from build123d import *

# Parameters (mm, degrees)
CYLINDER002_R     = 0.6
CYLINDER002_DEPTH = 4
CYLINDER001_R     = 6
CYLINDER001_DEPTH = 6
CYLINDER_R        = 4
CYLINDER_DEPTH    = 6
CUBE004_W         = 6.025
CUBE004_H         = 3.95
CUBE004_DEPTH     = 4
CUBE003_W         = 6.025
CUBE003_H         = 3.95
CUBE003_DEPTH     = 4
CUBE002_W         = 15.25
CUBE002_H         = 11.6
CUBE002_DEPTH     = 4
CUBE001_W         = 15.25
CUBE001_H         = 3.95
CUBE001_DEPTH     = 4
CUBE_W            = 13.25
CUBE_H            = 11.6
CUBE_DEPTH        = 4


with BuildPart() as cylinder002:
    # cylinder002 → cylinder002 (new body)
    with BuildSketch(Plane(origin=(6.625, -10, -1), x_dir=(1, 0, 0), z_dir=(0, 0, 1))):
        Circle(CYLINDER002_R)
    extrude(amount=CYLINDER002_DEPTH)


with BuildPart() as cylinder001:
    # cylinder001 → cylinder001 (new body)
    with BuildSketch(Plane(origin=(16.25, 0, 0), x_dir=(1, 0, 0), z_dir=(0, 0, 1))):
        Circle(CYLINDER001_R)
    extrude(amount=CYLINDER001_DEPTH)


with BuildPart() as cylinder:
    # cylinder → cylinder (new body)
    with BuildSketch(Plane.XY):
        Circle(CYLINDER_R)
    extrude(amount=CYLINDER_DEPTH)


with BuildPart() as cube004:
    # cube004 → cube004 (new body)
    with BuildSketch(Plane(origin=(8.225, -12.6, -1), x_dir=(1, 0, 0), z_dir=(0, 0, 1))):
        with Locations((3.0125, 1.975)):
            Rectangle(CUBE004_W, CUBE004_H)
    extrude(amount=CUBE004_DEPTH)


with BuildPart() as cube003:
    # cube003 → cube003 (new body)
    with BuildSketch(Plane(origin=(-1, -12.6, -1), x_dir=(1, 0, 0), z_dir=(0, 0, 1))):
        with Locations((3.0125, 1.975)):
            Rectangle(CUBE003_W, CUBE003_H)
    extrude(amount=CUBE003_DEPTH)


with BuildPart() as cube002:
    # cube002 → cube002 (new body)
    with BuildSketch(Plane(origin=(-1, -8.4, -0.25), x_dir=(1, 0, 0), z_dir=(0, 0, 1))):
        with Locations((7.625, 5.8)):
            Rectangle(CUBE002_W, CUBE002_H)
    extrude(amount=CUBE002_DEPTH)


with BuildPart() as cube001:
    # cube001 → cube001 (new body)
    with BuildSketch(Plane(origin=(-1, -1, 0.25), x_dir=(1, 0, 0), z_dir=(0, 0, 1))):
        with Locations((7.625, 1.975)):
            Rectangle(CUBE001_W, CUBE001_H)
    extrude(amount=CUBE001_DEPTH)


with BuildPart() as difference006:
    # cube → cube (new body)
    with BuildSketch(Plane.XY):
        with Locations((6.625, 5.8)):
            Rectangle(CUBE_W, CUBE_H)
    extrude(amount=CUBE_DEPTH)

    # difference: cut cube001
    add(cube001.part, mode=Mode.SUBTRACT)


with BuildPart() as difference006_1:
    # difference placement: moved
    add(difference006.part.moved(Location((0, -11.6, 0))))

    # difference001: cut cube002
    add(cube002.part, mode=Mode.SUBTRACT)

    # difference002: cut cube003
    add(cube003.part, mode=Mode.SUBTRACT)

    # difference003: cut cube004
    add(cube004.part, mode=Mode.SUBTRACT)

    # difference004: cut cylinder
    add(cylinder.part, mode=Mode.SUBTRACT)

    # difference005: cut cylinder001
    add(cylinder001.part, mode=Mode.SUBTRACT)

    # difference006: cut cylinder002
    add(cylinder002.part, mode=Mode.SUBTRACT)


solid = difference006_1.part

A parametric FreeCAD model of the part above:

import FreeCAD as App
import Part
import Sketcher

V = App.Vector


def add_polygon(sketch, points):
    """Adds a closed chain of lines whose ends are joined by coincident constraints."""
    first, n = sketch.GeometryCount, len(points)
    for a, b in zip(points, points[1:] + points[:1]):
        sketch.addGeometry(Part.LineSegment(App.Vector(*a, 0), App.Vector(*b, 0)), False)
    for i in range(n):
        sketch.addConstraint(Sketcher.Constraint("Coincident", first + i, 2, first + (i + 1) % n, 1))

doc = App.newDocument("Part")
body = doc.addObject("PartDesign::Body", "Body")

sketch1 = body.newObject("Sketcher::SketchObject", "Sketch")
sketch1.AttachmentSupport = (doc.getObject("XY_Plane"), [""])
sketch1.MapMode = "FlatFace"
sketch1.AttachmentOffset = App.Placement(V(0, 0, -1), App.Rotation())
sketch1.addGeometry(Part.Circle(V(6.625, -10, 0), V(0, 0, 1), 0.6), False)
sketch1.addConstraint([
    Sketcher.Constraint("Diameter", 0, 1.2),
    Sketcher.Constraint("DistanceY", 0, 3, -1, 1, 10.0),
    Sketcher.Constraint("DistanceX", -1, 1, 0, 3, 6.625),
])
pad1 = body.newObject("PartDesign::Pad", "Pad")
pad1.Profile = sketch1
pad1.Length = 4
body2 = doc.addObject("PartDesign::Body", "Body001")

sketch2 = body2.newObject("Sketcher::SketchObject", "Sketch001")
sketch2.AttachmentSupport = (doc.getObject("XY_Plane001"), [""])
sketch2.MapMode = "FlatFace"
sketch2.addGeometry(Part.Circle(V(16.25, 0, 0), V(0, 0, 1), 6), False)
sketch2.addConstraint([
    Sketcher.Constraint("PointOnObject", 0, 3, -1),
    Sketcher.Constraint("Diameter", 0, 12.0),
    Sketcher.Constraint("DistanceX", -1, 1, 0, 3, 16.25),
])
pad2 = body2.newObject("PartDesign::Pad", "Pad001")
pad2.Profile = sketch2
pad2.Length = 6
body3 = doc.addObject("PartDesign::Body", "Body002")

sketch3 = body3.newObject("Sketcher::SketchObject", "Sketch002")
sketch3.AttachmentSupport = (doc.getObject("XY_Plane002"), [""])
sketch3.MapMode = "FlatFace"
sketch3.addGeometry(Part.Circle(V(0, 0, 0), V(0, 0, 1), 4), False)
sketch3.addConstraint([
    Sketcher.Constraint("Coincident", 0, 3, -1, 1),
    Sketcher.Constraint("Diameter", 0, 8.0),
])
pad3 = body3.newObject("PartDesign::Pad", "Pad002")
pad3.Profile = sketch3
pad3.Length = 6
body4 = doc.addObject("PartDesign::Body", "Body003")

sketch4 = body4.newObject("Sketcher::SketchObject", "Sketch003")
sketch4.AttachmentSupport = (doc.getObject("XY_Plane003"), [""])
sketch4.MapMode = "FlatFace"
sketch4.AttachmentOffset = App.Placement(V(0, 0, -1), App.Rotation())
add_polygon(sketch4, [(8.225, -8.65), (8.225, -12.6), (14.25, -12.6), (14.25, -8.65)])
sketch4.addConstraint([
    Sketcher.Constraint("Vertical", 0),
    Sketcher.Constraint("Horizontal", 1),
    Sketcher.Constraint("Vertical", 2),
    Sketcher.Constraint("Horizontal", 3),
    Sketcher.Constraint("DistanceY", 0, 2, 0, 1, 3.95),
    Sketcher.Constraint("DistanceY", 0, 2, -1, 1, 12.6),
    Sketcher.Constraint("DistanceX", 1, 1, 1, 2, 6.025),
    Sketcher.Constraint("DistanceX", -1, 1, 1, 2, 14.25),
])
pad4 = body4.newObject("PartDesign::Pad", "Pad003")
pad4.Profile = sketch4
pad4.Length = 4
body5 = doc.addObject("PartDesign::Body", "Body004")

sketch5 = body5.newObject("Sketcher::SketchObject", "Sketch004")
sketch5.AttachmentSupport = (doc.getObject("XY_Plane004"), [""])
sketch5.MapMode = "FlatFace"
sketch5.AttachmentOffset = App.Placement(V(0, 0, -1), App.Rotation())
add_polygon(sketch5, [(-1, -8.65), (-1, -12.6), (5.025, -12.6), (5.025, -8.65)])
sketch5.addConstraint([
    Sketcher.Constraint("Vertical", 0),
    Sketcher.Constraint("Horizontal", 1),
    Sketcher.Constraint("Vertical", 2),
    Sketcher.Constraint("Horizontal", 3),
    Sketcher.Constraint("DistanceX", 0, 2, -1, 1, 1.0),
    Sketcher.Constraint("DistanceY", 0, 2, 0, 1, 3.95),
    Sketcher.Constraint("DistanceY", 0, 2, -1, 1, 12.6),
    Sketcher.Constraint("DistanceX", 1, 1, 1, 2, 6.025),
])
pad5 = body5.newObject("PartDesign::Pad", "Pad004")
pad5.Profile = sketch5
pad5.Length = 4
body6 = doc.addObject("PartDesign::Body", "Body005")

sketch6 = body6.newObject("Sketcher::SketchObject", "Sketch005")
sketch6.AttachmentSupport = (doc.getObject("XY_Plane005"), [""])
sketch6.MapMode = "FlatFace"
sketch6.AttachmentOffset = App.Placement(V(0, 0, -0.25), App.Rotation())
add_polygon(sketch6, [(-1, 3.2), (-1, -8.4), (14.25, -8.4), (14.25, 3.2)])
sketch6.addConstraint([
    Sketcher.Constraint("Vertical", 0),
    Sketcher.Constraint("Horizontal", 1),
    Sketcher.Constraint("Vertical", 2),
    Sketcher.Constraint("Horizontal", 3),
    Sketcher.Constraint("DistanceY", 0, 2, 0, 1, 11.6),
    Sketcher.Constraint("DistanceX", 0, 2, -1, 1, 1.0),
    Sketcher.Constraint("DistanceX", 1, 1, 1, 2, 15.25),
    Sketcher.Constraint("DistanceY", 0, 2, -1, 1, 8.4),
])
pad6 = body6.newObject("PartDesign::Pad", "Pad005")
pad6.Profile = sketch6
pad6.Length = 4
body7 = doc.addObject("PartDesign::Body", "Body006")

sketch7 = body7.newObject("Sketcher::SketchObject", "Sketch006")
sketch7.AttachmentSupport = (doc.getObject("XY_Plane006"), [""])
sketch7.MapMode = "FlatFace"
sketch7.AttachmentOffset = App.Placement(V(0, 0, 0.25), App.Rotation())
add_polygon(sketch7, [(-1, 2.95), (-1, -1), (14.25, -1), (14.25, 2.95)])
sketch7.addConstraint([
    Sketcher.Constraint("Vertical", 0),
    Sketcher.Constraint("Horizontal", 1),
    Sketcher.Constraint("Vertical", 2),
    Sketcher.Constraint("Horizontal", 3),
    Sketcher.Constraint("DistanceX", 0, 2, -1, 1, 1.0),
    Sketcher.Constraint("DistanceY", 0, 2, -1, 1, 1.0),
    Sketcher.Constraint("DistanceX", 1, 1, 1, 2, 15.25),
    Sketcher.Constraint("DistanceY", 0, 2, 0, 1, 3.95),
])
pad7 = body7.newObject("PartDesign::Pad", "Pad006")
pad7.Profile = sketch7
pad7.Length = 4
body8 = doc.addObject("PartDesign::Body", "Body007")

sketch8 = body8.newObject("Sketcher::SketchObject", "Sketch007")
sketch8.AttachmentSupport = (doc.getObject("XY_Plane007"), [""])
sketch8.MapMode = "FlatFace"
add_polygon(sketch8, [(0, 11.6), (0, 0), (13.25, 0), (13.25, 11.6)])
sketch8.addConstraint([
    Sketcher.Constraint("Vertical", 0),
    Sketcher.Constraint("Horizontal", 1),
    Sketcher.Constraint("Vertical", 2),
    Sketcher.Constraint("Horizontal", 3),
    Sketcher.Constraint("Coincident", 0, 2, -1, 1),
    Sketcher.Constraint("DistanceY", 0, 2, 0, 1, 11.6),
    Sketcher.Constraint("DistanceX", 1, 1, 1, 2, 13.25),
])
pad8 = body8.newObject("PartDesign::Pad", "Pad007")
pad8.Profile = sketch8
pad8.Length = 4
doc.recompute()

boolean = body8.newObject("PartDesign::Boolean", "Boolean")
boolean.Type = "Cut"
boolean.addObjects([body7])
body9 = doc.addObject("PartDesign::Body", "Body008")
doc.recompute()

body8.Placement = App.Placement(V(0, -11.6, 0), App.Rotation(V(0, 0, 1), 0))
boolean2 = body9.newObject("PartDesign::Boolean", "Boolean001")
boolean2.Type = "Fuse"
boolean2.addObjects([body8])
doc.recompute()

boolean3 = body9.newObject("PartDesign::Boolean", "Boolean002")
boolean3.Type = "Cut"
boolean3.addObjects([body6])
doc.recompute()

boolean4 = body9.newObject("PartDesign::Boolean", "Boolean003")
boolean4.Type = "Cut"
boolean4.addObjects([body5])
doc.recompute()

boolean5 = body9.newObject("PartDesign::Boolean", "Boolean004")
boolean5.Type = "Cut"
boolean5.addObjects([body4])
doc.recompute()

boolean6 = body9.newObject("PartDesign::Boolean", "Boolean005")
boolean6.Type = "Cut"
boolean6.addObjects([body3])
doc.recompute()

boolean7 = body9.newObject("PartDesign::Boolean", "Boolean006")
boolean7.Type = "Cut"
boolean7.addObjects([body2])
doc.recompute()

boolean8 = body9.newObject("PartDesign::Boolean", "Boolean007")
boolean8.Type = "Cut"
boolean8.addObjects([body])

doc.recompute()
